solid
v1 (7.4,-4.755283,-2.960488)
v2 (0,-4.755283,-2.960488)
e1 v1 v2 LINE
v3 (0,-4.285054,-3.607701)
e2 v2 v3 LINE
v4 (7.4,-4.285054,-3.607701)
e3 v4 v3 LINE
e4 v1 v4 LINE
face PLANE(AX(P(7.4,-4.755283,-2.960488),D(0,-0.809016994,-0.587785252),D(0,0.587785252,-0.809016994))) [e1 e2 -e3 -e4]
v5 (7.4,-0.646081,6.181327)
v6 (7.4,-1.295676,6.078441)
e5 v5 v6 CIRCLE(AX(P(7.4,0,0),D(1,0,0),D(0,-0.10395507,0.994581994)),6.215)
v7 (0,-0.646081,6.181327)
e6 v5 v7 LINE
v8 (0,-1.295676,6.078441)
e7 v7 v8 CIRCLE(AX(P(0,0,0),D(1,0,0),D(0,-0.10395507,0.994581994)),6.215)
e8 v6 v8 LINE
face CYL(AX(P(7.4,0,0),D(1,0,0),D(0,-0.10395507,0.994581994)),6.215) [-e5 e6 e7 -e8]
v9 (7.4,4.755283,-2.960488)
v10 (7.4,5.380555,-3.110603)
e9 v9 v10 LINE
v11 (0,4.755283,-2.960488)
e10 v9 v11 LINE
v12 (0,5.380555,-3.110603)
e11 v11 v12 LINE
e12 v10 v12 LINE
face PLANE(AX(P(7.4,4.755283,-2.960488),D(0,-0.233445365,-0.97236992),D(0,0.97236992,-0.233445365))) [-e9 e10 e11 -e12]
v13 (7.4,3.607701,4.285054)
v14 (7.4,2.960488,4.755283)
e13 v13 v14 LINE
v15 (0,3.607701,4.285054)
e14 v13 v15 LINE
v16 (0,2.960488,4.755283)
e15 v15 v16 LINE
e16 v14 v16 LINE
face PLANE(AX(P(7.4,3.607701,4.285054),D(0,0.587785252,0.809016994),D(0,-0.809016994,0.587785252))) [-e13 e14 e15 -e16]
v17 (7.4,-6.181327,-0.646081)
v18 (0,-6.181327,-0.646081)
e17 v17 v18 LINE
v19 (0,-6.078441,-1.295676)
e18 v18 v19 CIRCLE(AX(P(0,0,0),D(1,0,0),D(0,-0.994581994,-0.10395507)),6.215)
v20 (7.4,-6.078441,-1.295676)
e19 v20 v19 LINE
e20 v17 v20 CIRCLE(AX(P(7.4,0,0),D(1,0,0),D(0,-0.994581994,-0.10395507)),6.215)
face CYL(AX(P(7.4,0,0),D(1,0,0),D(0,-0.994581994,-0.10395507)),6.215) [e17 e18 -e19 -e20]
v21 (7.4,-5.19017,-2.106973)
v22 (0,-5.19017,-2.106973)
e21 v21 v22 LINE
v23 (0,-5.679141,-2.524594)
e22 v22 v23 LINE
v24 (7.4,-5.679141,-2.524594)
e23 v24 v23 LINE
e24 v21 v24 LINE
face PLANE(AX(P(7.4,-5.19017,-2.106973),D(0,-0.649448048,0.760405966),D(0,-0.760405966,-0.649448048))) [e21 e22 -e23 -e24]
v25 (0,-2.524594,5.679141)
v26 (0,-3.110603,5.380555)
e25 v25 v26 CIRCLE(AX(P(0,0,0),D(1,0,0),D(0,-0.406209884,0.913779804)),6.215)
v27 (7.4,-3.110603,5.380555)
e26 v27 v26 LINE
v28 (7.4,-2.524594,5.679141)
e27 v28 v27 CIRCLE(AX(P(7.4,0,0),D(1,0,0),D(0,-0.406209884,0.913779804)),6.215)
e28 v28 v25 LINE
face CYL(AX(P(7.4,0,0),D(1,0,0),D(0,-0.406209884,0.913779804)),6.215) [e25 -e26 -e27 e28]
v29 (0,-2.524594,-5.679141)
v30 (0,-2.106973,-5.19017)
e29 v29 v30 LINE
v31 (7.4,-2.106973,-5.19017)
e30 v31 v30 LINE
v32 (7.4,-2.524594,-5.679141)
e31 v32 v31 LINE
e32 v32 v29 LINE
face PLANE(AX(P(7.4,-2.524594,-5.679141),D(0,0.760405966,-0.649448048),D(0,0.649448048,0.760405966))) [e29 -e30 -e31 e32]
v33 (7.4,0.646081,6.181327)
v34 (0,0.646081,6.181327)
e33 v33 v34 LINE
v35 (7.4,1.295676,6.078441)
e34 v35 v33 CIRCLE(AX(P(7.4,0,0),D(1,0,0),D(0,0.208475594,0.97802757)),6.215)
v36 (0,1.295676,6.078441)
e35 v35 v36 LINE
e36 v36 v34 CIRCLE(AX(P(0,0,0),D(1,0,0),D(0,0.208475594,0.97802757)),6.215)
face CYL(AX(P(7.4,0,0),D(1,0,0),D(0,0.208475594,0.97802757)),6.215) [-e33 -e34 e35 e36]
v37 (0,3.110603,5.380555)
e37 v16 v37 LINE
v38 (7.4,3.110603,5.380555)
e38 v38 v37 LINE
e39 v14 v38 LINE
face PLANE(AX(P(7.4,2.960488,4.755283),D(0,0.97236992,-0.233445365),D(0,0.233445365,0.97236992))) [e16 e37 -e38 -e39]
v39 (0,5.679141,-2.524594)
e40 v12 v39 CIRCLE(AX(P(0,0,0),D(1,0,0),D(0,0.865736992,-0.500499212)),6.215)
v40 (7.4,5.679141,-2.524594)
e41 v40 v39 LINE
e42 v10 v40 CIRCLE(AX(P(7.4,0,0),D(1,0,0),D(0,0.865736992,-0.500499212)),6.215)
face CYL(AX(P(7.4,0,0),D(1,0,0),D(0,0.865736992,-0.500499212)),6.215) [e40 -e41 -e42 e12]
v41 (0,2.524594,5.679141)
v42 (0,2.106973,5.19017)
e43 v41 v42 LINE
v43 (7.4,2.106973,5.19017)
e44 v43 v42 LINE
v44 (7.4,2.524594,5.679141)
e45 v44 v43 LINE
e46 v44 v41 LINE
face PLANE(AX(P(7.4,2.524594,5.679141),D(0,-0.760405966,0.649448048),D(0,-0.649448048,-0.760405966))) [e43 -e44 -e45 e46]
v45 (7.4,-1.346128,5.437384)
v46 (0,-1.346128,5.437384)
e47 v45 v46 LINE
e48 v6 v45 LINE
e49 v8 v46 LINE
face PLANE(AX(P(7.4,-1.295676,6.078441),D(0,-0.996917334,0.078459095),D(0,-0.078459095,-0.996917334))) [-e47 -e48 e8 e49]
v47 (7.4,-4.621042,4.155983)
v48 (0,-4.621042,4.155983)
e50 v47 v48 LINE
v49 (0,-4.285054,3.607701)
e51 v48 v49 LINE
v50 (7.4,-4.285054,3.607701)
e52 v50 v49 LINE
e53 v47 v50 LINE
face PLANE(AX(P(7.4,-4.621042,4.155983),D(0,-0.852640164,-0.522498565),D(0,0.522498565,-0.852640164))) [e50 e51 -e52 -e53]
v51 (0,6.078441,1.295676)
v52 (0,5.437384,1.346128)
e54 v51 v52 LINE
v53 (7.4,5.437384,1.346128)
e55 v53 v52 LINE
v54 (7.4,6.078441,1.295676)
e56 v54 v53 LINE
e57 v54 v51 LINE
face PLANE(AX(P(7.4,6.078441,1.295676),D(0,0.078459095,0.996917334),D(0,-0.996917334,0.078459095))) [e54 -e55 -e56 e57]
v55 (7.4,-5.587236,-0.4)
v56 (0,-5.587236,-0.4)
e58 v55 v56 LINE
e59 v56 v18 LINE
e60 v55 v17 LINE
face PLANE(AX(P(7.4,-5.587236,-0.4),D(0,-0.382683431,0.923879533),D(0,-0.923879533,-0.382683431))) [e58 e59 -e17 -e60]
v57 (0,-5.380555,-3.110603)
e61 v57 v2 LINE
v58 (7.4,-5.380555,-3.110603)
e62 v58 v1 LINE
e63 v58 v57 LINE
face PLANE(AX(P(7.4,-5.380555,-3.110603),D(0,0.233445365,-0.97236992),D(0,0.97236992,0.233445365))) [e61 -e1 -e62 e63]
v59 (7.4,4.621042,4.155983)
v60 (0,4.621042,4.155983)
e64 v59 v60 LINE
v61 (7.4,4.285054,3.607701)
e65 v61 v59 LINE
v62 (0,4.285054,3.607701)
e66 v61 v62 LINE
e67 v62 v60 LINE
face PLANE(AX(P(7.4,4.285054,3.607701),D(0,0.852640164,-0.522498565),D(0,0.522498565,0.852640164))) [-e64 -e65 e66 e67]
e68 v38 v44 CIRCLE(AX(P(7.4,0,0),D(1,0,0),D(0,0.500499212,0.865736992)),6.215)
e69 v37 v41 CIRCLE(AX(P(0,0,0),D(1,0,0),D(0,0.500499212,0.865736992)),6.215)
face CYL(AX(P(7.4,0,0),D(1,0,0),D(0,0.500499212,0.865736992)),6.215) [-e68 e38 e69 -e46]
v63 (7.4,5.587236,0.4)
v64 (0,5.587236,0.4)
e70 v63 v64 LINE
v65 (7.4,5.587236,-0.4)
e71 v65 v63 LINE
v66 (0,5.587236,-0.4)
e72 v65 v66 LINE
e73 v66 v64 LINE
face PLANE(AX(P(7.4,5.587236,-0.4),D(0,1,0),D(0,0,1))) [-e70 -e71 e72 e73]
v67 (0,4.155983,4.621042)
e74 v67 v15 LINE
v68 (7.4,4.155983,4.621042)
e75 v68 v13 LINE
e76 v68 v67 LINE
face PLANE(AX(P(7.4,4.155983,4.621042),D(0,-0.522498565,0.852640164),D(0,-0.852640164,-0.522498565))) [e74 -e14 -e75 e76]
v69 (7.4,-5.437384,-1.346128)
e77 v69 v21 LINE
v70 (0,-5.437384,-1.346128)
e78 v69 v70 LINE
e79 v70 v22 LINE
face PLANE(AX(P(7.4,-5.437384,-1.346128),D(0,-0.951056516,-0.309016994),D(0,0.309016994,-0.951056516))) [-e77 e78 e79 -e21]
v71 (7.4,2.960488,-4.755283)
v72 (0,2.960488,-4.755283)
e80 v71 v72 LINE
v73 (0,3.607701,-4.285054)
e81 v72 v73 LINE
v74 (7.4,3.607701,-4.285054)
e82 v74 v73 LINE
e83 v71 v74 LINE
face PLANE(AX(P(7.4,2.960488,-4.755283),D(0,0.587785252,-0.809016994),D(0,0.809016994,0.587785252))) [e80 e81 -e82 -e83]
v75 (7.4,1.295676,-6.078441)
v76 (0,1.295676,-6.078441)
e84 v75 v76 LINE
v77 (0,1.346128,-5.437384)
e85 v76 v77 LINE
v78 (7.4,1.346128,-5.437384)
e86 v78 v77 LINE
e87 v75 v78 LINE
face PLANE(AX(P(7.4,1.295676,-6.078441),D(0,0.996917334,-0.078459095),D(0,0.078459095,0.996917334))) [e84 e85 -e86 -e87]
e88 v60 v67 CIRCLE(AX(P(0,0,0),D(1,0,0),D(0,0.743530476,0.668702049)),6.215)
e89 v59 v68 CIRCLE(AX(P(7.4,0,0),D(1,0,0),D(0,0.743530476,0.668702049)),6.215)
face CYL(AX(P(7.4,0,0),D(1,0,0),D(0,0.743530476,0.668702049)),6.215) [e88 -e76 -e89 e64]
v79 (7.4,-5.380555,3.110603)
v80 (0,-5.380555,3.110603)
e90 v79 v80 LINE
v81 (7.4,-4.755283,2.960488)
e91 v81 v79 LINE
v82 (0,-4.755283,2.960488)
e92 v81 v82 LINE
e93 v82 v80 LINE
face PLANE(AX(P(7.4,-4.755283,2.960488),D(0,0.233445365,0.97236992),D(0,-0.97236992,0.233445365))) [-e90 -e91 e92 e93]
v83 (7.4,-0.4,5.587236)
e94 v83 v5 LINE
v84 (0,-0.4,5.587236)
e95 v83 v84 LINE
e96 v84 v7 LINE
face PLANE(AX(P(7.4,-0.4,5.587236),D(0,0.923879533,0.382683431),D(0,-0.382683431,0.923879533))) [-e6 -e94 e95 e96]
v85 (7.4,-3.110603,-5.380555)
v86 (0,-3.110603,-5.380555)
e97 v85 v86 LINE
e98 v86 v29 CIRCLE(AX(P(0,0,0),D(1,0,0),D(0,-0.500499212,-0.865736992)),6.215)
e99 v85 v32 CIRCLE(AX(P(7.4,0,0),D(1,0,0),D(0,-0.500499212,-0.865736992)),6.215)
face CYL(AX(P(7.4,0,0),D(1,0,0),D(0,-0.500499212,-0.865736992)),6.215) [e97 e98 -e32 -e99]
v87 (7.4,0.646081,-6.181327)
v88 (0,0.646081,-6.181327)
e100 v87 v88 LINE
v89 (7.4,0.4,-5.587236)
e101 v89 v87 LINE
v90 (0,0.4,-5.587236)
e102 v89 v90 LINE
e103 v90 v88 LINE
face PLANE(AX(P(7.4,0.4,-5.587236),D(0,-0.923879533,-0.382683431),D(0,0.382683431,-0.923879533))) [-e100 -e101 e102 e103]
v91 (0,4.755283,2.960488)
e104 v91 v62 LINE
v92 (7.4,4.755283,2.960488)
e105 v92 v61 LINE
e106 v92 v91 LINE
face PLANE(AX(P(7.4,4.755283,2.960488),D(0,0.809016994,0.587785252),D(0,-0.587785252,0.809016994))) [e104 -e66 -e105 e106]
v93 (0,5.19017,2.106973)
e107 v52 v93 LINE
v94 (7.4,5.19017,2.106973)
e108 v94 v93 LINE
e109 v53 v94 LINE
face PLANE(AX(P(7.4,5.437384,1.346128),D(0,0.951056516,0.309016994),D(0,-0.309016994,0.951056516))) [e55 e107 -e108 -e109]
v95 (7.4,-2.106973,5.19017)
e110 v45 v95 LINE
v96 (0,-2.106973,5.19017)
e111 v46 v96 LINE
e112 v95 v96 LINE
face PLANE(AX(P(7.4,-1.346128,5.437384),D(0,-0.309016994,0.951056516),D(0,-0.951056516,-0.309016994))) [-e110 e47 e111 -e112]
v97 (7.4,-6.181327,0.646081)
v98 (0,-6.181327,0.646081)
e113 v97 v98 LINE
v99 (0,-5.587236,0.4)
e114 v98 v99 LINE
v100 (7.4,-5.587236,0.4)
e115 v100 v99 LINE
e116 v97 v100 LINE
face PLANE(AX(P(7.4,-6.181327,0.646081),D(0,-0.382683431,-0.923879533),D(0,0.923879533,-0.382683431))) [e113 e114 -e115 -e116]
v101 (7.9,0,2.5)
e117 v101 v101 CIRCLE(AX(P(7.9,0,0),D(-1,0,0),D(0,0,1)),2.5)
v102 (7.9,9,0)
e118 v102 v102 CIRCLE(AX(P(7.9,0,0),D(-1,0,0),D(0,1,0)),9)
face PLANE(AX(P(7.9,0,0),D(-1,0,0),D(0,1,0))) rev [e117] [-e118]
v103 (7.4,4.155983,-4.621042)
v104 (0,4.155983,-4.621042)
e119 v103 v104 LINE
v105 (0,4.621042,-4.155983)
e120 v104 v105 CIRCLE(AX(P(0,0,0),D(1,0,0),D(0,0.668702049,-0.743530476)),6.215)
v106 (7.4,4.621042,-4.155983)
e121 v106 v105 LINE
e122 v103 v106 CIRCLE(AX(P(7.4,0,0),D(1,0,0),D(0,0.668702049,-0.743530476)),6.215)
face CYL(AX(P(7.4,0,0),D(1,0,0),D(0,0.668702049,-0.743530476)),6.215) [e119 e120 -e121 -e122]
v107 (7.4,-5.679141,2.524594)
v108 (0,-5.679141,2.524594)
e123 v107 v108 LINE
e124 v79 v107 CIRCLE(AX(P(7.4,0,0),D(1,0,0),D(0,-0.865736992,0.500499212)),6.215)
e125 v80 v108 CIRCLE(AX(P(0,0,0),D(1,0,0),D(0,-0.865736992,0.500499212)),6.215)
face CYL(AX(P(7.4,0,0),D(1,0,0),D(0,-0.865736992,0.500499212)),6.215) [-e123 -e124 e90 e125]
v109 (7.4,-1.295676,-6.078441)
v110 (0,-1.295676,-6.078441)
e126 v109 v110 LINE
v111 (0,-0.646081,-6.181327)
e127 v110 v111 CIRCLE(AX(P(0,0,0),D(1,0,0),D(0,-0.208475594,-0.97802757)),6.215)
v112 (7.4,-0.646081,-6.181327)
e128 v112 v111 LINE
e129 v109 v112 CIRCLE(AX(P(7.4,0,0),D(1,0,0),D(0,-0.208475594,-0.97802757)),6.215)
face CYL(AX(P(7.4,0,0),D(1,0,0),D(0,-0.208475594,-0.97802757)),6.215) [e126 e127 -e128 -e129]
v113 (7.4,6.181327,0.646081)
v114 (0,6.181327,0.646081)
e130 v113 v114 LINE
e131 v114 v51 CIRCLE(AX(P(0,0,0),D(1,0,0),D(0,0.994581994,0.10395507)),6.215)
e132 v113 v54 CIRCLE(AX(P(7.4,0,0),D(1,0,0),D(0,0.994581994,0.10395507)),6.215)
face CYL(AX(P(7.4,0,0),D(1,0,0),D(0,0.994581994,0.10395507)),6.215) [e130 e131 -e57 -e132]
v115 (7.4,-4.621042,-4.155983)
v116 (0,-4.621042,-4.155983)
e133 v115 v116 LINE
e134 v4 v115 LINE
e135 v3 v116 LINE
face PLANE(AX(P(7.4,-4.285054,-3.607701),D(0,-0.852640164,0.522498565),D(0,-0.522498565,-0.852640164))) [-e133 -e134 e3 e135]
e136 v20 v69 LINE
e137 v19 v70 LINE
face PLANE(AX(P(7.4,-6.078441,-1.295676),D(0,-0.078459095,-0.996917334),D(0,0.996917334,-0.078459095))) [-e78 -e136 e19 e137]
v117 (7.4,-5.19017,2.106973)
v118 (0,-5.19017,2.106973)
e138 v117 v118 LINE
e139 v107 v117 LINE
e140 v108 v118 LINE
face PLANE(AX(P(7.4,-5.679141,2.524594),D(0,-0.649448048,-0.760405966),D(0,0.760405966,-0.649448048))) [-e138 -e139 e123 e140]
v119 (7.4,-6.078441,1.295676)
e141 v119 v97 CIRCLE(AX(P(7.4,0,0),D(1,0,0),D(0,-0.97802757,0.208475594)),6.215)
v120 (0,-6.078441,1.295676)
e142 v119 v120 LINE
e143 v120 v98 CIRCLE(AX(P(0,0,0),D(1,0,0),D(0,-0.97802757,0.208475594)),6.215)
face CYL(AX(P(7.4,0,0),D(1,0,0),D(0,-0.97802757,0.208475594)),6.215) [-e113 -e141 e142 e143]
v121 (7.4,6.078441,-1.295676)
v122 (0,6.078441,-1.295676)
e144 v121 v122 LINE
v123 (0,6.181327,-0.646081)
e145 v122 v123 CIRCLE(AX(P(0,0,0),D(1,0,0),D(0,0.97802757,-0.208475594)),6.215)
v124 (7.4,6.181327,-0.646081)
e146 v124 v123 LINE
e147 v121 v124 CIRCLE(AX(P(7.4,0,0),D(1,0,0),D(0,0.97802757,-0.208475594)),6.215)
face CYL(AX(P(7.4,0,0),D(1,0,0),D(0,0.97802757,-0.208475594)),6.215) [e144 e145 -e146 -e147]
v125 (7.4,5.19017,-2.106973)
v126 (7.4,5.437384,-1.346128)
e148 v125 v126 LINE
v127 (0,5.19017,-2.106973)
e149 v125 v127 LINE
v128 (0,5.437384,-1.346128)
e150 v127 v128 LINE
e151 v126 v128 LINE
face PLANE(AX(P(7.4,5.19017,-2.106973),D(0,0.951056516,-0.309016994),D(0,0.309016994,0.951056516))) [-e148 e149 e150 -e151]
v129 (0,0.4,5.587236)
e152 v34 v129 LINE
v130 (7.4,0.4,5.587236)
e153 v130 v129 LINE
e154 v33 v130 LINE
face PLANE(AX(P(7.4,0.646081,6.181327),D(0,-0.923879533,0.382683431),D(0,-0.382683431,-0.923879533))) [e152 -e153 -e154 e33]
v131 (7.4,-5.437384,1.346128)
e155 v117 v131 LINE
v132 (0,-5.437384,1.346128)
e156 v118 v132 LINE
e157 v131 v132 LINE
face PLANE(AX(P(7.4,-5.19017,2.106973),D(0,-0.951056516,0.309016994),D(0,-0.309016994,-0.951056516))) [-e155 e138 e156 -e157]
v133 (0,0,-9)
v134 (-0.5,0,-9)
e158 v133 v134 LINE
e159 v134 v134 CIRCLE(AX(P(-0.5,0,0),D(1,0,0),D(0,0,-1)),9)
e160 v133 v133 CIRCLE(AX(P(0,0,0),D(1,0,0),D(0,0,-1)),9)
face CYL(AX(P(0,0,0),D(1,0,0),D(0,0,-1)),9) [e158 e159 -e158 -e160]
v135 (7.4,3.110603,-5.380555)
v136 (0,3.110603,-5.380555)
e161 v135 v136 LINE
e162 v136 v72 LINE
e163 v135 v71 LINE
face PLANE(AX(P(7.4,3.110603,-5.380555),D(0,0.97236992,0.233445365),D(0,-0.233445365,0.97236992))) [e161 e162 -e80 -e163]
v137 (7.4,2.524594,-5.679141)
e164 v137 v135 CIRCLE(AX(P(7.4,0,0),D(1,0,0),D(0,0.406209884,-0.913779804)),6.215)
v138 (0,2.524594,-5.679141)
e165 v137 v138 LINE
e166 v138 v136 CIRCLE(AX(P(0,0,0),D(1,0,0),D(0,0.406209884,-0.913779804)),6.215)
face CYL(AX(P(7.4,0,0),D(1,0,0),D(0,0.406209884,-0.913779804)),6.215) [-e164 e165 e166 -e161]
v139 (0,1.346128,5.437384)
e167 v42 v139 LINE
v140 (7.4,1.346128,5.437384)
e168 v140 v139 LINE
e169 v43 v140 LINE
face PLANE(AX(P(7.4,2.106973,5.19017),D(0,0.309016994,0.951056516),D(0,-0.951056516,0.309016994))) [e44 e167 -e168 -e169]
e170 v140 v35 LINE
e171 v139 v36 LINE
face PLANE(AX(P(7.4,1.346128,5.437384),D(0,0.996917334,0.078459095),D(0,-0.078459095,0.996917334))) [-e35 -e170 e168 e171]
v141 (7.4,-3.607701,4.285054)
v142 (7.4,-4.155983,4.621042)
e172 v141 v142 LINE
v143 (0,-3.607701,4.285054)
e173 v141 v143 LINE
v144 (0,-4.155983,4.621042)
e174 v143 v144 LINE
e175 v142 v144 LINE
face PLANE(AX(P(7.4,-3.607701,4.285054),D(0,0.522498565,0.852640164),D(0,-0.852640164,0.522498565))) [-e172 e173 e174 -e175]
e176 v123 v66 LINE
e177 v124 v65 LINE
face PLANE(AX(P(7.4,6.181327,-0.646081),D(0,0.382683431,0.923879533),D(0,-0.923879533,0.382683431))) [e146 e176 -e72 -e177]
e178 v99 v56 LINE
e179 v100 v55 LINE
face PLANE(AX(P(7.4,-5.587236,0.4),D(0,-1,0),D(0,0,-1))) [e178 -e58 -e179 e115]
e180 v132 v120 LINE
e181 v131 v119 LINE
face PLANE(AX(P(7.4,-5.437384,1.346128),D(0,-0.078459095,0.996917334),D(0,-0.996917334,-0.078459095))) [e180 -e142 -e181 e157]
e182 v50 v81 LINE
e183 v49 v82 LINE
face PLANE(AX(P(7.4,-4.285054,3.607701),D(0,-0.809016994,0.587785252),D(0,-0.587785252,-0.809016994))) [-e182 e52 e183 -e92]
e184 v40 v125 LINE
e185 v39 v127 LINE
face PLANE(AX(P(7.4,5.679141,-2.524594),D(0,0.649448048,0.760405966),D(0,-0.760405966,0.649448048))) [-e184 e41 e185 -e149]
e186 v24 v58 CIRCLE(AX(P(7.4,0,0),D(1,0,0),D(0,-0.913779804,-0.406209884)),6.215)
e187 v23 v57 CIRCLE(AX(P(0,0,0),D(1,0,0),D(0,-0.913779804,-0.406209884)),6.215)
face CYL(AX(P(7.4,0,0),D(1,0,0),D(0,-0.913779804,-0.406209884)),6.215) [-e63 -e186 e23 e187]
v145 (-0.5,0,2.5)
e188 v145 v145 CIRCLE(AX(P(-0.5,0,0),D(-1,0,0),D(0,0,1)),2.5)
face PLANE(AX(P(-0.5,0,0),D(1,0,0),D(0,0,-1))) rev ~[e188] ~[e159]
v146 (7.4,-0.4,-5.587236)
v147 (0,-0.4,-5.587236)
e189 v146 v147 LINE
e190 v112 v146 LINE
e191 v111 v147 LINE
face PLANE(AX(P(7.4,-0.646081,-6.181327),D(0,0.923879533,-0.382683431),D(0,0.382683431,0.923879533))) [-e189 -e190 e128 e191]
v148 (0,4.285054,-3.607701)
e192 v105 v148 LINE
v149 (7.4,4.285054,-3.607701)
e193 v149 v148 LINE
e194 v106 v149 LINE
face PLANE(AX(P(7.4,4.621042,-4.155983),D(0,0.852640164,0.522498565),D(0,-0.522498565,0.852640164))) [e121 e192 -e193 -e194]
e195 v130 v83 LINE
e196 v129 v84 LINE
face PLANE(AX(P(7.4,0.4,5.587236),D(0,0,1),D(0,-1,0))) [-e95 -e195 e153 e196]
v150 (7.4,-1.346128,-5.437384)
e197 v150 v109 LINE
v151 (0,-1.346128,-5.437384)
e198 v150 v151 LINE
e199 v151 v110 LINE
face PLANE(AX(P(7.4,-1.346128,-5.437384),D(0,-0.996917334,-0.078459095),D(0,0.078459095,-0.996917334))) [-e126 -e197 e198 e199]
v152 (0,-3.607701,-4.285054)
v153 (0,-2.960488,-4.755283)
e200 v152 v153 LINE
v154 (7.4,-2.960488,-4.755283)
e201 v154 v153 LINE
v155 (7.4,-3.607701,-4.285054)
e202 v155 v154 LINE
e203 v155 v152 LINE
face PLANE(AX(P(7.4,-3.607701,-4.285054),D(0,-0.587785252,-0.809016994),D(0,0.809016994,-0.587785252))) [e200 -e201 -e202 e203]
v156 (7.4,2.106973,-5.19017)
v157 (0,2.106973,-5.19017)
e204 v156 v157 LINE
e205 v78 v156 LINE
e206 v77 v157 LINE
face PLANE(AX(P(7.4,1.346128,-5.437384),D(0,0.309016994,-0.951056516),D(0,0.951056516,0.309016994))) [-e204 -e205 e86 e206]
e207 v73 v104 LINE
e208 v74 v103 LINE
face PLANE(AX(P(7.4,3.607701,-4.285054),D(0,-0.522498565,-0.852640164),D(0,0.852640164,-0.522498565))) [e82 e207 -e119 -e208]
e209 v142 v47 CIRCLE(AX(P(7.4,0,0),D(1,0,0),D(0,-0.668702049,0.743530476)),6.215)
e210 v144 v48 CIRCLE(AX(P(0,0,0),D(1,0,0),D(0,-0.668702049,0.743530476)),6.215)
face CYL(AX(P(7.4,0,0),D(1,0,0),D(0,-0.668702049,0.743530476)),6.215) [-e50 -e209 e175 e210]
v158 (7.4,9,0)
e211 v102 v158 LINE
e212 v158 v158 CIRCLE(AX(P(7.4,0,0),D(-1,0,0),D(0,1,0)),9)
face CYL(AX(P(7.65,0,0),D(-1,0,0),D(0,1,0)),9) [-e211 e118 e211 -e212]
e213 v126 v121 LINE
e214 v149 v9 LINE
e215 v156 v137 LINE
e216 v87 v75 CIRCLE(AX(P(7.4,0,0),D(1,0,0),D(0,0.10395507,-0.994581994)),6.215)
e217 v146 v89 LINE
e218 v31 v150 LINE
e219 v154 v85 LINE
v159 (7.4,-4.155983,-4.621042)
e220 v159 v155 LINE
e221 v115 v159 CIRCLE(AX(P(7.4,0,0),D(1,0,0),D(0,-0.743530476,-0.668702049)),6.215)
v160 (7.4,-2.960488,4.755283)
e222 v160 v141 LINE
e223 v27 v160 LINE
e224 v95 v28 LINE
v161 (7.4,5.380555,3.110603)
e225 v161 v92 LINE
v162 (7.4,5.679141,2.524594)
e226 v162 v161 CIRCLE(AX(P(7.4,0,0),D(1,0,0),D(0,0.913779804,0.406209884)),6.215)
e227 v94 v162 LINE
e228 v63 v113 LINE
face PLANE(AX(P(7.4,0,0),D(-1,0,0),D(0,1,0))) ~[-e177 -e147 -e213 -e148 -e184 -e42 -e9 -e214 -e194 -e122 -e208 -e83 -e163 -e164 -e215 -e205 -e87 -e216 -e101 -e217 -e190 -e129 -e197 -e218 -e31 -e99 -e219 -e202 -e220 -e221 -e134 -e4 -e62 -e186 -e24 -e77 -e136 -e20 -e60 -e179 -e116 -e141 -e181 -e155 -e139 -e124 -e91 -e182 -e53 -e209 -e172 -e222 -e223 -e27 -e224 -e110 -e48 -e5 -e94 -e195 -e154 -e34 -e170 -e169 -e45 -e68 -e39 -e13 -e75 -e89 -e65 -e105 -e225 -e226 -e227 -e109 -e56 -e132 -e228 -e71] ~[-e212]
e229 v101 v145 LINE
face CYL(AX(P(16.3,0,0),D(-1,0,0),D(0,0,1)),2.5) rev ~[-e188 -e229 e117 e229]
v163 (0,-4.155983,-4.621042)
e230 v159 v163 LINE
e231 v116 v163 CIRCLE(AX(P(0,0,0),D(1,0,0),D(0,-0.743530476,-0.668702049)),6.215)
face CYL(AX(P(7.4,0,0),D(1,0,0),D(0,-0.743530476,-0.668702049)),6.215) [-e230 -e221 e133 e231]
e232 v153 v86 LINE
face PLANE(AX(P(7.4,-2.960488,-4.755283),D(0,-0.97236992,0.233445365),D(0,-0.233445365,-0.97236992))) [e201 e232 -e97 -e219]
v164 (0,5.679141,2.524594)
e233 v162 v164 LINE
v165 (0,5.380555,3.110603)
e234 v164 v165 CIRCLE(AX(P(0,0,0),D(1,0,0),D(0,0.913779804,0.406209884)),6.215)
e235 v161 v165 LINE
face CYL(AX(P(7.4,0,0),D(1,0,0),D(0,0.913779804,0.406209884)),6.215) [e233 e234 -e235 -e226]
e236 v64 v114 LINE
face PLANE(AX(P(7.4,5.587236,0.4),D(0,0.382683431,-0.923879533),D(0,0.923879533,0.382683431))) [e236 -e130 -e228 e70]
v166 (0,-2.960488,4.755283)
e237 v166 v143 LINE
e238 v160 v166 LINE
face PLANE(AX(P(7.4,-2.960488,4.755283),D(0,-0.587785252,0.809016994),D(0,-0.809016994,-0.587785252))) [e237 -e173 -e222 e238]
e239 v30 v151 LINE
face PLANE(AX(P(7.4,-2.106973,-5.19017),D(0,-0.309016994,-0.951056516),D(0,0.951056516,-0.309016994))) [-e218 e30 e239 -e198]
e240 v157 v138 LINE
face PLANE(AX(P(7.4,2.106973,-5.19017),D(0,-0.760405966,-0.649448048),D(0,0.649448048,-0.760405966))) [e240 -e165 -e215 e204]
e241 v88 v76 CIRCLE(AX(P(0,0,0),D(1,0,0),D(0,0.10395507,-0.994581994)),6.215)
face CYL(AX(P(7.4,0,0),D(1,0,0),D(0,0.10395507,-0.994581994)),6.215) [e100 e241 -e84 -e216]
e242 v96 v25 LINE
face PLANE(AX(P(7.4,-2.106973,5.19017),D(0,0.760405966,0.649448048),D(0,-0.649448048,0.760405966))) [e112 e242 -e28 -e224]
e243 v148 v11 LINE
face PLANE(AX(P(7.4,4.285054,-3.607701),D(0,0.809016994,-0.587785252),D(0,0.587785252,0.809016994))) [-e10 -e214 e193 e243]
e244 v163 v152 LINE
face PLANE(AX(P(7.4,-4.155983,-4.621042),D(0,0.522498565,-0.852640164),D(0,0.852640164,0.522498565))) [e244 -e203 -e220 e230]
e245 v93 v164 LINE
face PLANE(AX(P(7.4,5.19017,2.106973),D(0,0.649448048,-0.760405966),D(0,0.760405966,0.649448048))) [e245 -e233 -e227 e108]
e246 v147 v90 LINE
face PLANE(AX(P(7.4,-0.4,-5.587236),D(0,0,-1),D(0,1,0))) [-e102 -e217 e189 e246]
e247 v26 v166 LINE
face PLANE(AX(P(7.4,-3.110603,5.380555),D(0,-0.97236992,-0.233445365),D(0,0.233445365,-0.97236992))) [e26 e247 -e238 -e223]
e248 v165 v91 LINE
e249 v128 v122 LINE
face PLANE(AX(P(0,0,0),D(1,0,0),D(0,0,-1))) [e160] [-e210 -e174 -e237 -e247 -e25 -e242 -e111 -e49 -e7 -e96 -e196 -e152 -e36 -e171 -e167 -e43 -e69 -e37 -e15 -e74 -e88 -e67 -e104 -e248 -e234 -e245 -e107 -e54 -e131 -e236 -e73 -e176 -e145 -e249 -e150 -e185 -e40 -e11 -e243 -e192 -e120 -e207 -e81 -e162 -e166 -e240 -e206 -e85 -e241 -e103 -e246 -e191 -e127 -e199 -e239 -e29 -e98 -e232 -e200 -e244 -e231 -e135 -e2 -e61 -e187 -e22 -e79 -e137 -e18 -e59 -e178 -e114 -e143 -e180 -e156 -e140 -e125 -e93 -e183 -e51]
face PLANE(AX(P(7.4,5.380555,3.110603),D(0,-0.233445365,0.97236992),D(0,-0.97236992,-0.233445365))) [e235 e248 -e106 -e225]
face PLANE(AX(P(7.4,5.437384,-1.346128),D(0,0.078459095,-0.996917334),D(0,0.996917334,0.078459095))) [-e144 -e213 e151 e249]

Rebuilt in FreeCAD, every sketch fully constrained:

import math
import FreeCAD as App
import Part
import Sketcher

V = App.Vector
Q = App.Units.Quantity


def add_polygon(sketch, points):
    """Adds a closed chain of lines whose ends are joined by coincident constraints."""
    first, n = sketch.GeometryCount, len(points)
    for a, b in zip(points, points[1:] + points[:1]):
        sketch.addGeometry(Part.LineSegment(App.Vector(*a, 0), App.Vector(*b, 0)), False)
    for i in range(n):
        sketch.addConstraint(Sketcher.Constraint("Coincident", first + i, 2, first + (i + 1) % n, 1))

doc = App.newDocument("Part")
params = doc.addObject("Spreadsheet::Sheet", "Params")
for row, (alias, value) in enumerate([
    ("sketch1_height", "9 mm"),
    ("sketch1_width", "0.5 mm"),
    ("revolution_angle", "360 deg"),
    ("sketch2_width", "0.8 mm"),
    ("sketch2_length", "0.8 mm"),
    ("pad1_length", "7.4 mm"),
    ("sketch3_diameter", "18 mm"),
    ("pad2_length", "0.5 mm"),
    ("sketch4_diameter", "5 mm"),
    ("hole_diameter", "5 mm"),
    ("hole_depth", "8.4 mm"),
], start=1):
    params.set(f"A{row}", alias)
    params.set(f"B{row}", "=" + value)
    params.setAlias(f"B{row}", alias)

body = doc.addObject("PartDesign::Body", "Body")

sketch1 = body.newObject("Sketcher::SketchObject", "Sketch")
sketch1.AttachmentSupport = (doc.getObject("XY_Plane"), [""])
sketch1.MapMode = "FlatFace"
add_polygon(sketch1, [(7.9, 9), (7.9, 0), (7.4, 0), (7.4, 9)])
sketch1.addConstraint([
    Sketcher.Constraint("Vertical", 0),
    Sketcher.Constraint("Horizontal", 1),
    Sketcher.Constraint("Vertical", 2),
    Sketcher.Constraint("Horizontal", 3),
    Sketcher.Constraint("PointOnObject", 0, 2, -1),
    Sketcher.Constraint("DistanceY", 0, 2, 0, 1, Q("9 mm")),
    Sketcher.Constraint("DistanceX", 1, 2, 1, 1, Q("0.5 mm")),
    Sketcher.Constraint("DistanceX", -1, 1, 0, 2, Q("7.9 mm")),
])
sketch1.setExpression("Constraints[9]", "Params.sketch1_height")
sketch1.setExpression("Constraints[10]", "Params.sketch1_width")
revolution = body.newObject("PartDesign::Revolution", "Revolution")
revolution.Profile = sketch1
revolution.ReferenceAxis = (sketch1, ["H_Axis"])
revolution.setExpression("Angle", "Params.revolution_angle")

sketch2 = body.newObject("Sketcher::SketchObject", "Sketch001")
sketch2.AttachmentSupport = (doc.getObject("YZ_Plane"), [""])
sketch2.MapMode = "FlatFace"
sketch2.AttachmentOffset = App.Placement(V(0, 0, 7.4), App.Rotation())
sketch2.addGeometry([
    Part.LineSegment(V(-1.3, 5.4, 0), V(-1.3, 6.1, 0)),
    Part.ArcOfCircle(Part.Circle(V(0, 0, 0), V(0, 0, 1), 6.2), math.radians(95.97), math.radians(102.03)),
    Part.LineSegment(V(-0.6, 6.2, 0), V(-0.4, 5.6, 0)),
    Part.LineSegment(V(-0.4, 5.6, 0), V(0.4, 5.6, 0)),
    Part.LineSegment(V(0.4, 5.6, 0), V(0.6, 6.2, 0)),
    Part.ArcOfCircle(Part.Circle(V(0, 0, 0), V(0, 0, 1), 6.2), math.radians(77.97), math.radians(84.03)),
    Part.LineSegment(V(1.3, 6.1, 0), V(1.3, 5.4, 0)),
    Part.LineSegment(V(1.3, 5.4, 0), V(2.1, 5.2, 0)),
    Part.LineSegment(V(2.1, 5.2, 0), V(2.5, 5.7, 0)),
    Part.ArcOfCircle(Part.Circle(V(0, 0, 0), V(0, 0, 1), 6.2), math.radians(59.97), math.radians(66.03)),
    Part.LineSegment(V(3.1, 5.4, 0), V(3, 4.8, 0)),
    Part.LineSegment(V(3, 4.8, 0), V(3.6, 4.3, 0)),
    Part.LineSegment(V(3.6, 4.3, 0), V(4.2, 4.6, 0)),
    Part.ArcOfCircle(Part.Circle(V(0, 0, 0), V(0, 0, 1), 6.2), math.radians(41.97), math.radians(48.03)),
    Part.LineSegment(V(4.6, 4.2, 0), V(4.3, 3.6, 0)),
    Part.LineSegment(V(4.3, 3.6, 0), V(4.8, 3, 0)),
    Part.LineSegment(V(4.8, 3, 0), V(5.4, 3.1, 0)),
    Part.ArcOfCircle(Part.Circle(V(0, 0, 0), V(0, 0, 1), 6.2), math.radians(23.97), math.radians(30.03)),
    Part.LineSegment(V(5.7, 2.5, 0), V(5.2, 2.1, 0)),
    Part.LineSegment(V(5.2, 2.1, 0), V(5.4, 1.3, 0)),
    Part.LineSegment(V(5.4, 1.3, 0), V(6.1, 1.3, 0)),
    Part.ArcOfCircle(Part.Circle(V(0, 0, 0), V(0, 0, 1), 6.2), math.radians(5.97), math.radians(12.03)),
    Part.LineSegment(V(6.2, 0.6, 0), V(5.6, 0.4, 0)),
    Part.LineSegment(V(5.6, 0.4, 0), V(5.6, -0.4, 0)),
    Part.LineSegment(V(5.6, -0.4, 0), V(6.2, -0.6, 0)),
    Part.ArcOfCircle(Part.Circle(V(0, 0, 0), V(0, 0, 1), 6.2), math.radians(-12.03), math.radians(-5.97)),
    Part.LineSegment(V(6.1, -1.3, 0), V(5.4, -1.3, 0)),
    Part.LineSegment(V(5.4, -1.3, 0), V(5.2, -2.1, 0)),
    Part.LineSegment(V(5.2, -2.1, 0), V(5.7, -2.5, 0)),
    Part.ArcOfCircle(Part.Circle(V(0, 0, 0), V(0, 0, 1), 6.2), math.radians(-30.03), math.radians(-23.97)),
    Part.LineSegment(V(5.4, -3.1, 0), V(4.8, -3, 0)),
    Part.LineSegment(V(4.8, -3, 0), V(4.3, -3.6, 0)),
    Part.LineSegment(V(4.3, -3.6, 0), V(4.6, -4.2, 0)),
    Part.ArcOfCircle(Part.Circle(V(0, 0, 0), V(0, 0, 1), 6.2), math.radians(-48.03), math.radians(-41.97)),
    Part.LineSegment(V(4.2, -4.6, 0), V(3.6, -4.3, 0)),
    Part.LineSegment(V(3.6, -4.3, 0), V(3, -4.8, 0)),
    Part.LineSegment(V(3, -4.8, 0), V(3.1, -5.4, 0)),
    Part.ArcOfCircle(Part.Circle(V(0, 0, 0), V(0, 0, 1), 6.2), math.radians(-66.03), math.radians(-59.97)),
    Part.LineSegment(V(2.5, -5.7, 0), V(2.1, -5.2, 0)),
    Part.LineSegment(V(2.1, -5.2, 0), V(1.3, -5.4, 0)),
    Part.LineSegment(V(1.3, -5.4, 0), V(1.3, -6.1, 0)),
    Part.ArcOfCircle(Part.Circle(V(0, 0, 0), V(0, 0, 1), 6.2), math.radians(-84.03), math.radians(-77.97)),
    Part.LineSegment(V(0.6, -6.2, 0), V(0.4, -5.6, 0)),
    Part.LineSegment(V(0.4, -5.6, 0), V(-0.4, -5.6, 0)),
    Part.LineSegment(V(-0.4, -5.6, 0), V(-0.6, -6.2, 0)),
    Part.ArcOfCircle(Part.Circle(V(0, 0, 0), V(0, 0, 1), 6.2), math.radians(-102.03), math.radians(-95.97)),
    Part.LineSegment(V(-1.3, -6.1, 0), V(-1.3, -5.4, 0)),
    Part.LineSegment(V(-1.3, -5.4, 0), V(-2.1, -5.2, 0)),
    Part.LineSegment(V(-2.1, -5.2, 0), V(-2.5, -5.7, 0)),
    Part.ArcOfCircle(Part.Circle(V(0, 0, 0), V(0, 0, 1), 6.2), math.radians(-120.03), math.radians(-113.97)),
    Part.LineSegment(V(-3.1, -5.4, 0), V(-3, -4.8, 0)),
    Part.LineSegment(V(-3, -4.8, 0), V(-3.6, -4.3, 0)),
    Part.LineSegment(V(-3.6, -4.3, 0), V(-4.2, -4.6, 0)),
    Part.ArcOfCircle(Part.Circle(V(0, 0, 0), V(0, 0, 1), 6.2), math.radians(-138.03), math.radians(-131.97)),
    Part.LineSegment(V(-4.6, -4.2, 0), V(-4.3, -3.6, 0)),
    Part.LineSegment(V(-4.3, -3.6, 0), V(-4.8, -3, 0)),
    Part.LineSegment(V(-4.8, -3, 0), V(-5.4, -3.1, 0)),
    Part.ArcOfCircle(Part.Circle(V(0, 0, 0), V(0, 0, 1), 6.2), math.radians(-156.03), math.radians(-149.97)),
    Part.LineSegment(V(-5.7, -2.5, 0), V(-5.2, -2.1, 0)),
    Part.LineSegment(V(-5.2, -2.1, 0), V(-5.4, -1.3, 0)),
    Part.LineSegment(V(-5.4, -1.3, 0), V(-6.1, -1.3, 0)),
    Part.ArcOfCircle(Part.Circle(V(0, 0, 0), V(0, 0, 1), 6.2), math.radians(-174.03), math.radians(-167.97)),
    Part.LineSegment(V(-6.2, -0.6, 0), V(-5.6, -0.4, 0)),
    Part.LineSegment(V(-5.6, -0.4, 0), V(-5.6, 0.4, 0)),
    Part.LineSegment(V(-5.6, 0.4, 0), V(-6.2, 0.6, 0)),
    Part.ArcOfCircle(Part.Circle(V(0, 0, 0), V(0, 0, 1), 6.2), math.radians(167.97), math.radians(174.03)),
    Part.LineSegment(V(-6.1, 1.3, 0), V(-5.4, 1.3, 0)),
    Part.LineSegment(V(-5.4, 1.3, 0), V(-5.2, 2.1, 0)),
    Part.LineSegment(V(-5.2, 2.1, 0), V(-5.7, 2.5, 0)),
    Part.ArcOfCircle(Part.Circle(V(0, 0, 0), V(0, 0, 1), 6.2), math.radians(149.97), math.radians(156.03)),
    Part.LineSegment(V(-5.4, 3.1, 0), V(-4.8, 3, 0)),
    Part.LineSegment(V(-4.8, 3, 0), V(-4.3, 3.6, 0)),
    Part.LineSegment(V(-4.3, 3.6, 0), V(-4.6, 4.2, 0)),
    Part.ArcOfCircle(Part.Circle(V(0, 0, 0), V(0, 0, 1), 6.2), math.radians(131.97), math.radians(138.03)),
    Part.LineSegment(V(-4.2, 4.6, 0), V(-3.6, 4.3, 0)),
    Part.LineSegment(V(-3.6, 4.3, 0), V(-3, 4.8, 0)),
    Part.LineSegment(V(-3, 4.8, 0), V(-3.1, 5.4, 0)),
    Part.ArcOfCircle(Part.Circle(V(0, 0, 0), V(0, 0, 1), 6.2), math.radians(113.97), math.radians(120.03)),
    Part.LineSegment(V(-2.5, 5.7, 0), V(-2.1, 5.2, 0)),
    Part.LineSegment(V(-2.1, 5.2, 0), V(-1.3, 5.4, 0)),
], False)
sketch2.addConstraint([
    Sketcher.Constraint("Coincident", 0, 2, 1, 2),
    Sketcher.Constraint("Coincident", 1, 1, 2, 1),
    Sketcher.Constraint("Coincident", 2, 2, 3, 1),
    Sketcher.Constraint("Coincident", 3, 2, 4, 1),
    Sketcher.Constraint("Coincident", 4, 2, 5, 2),
    Sketcher.Constraint("Coincident", 5, 1, 6, 1),
    Sketcher.Constraint("Coincident", 6, 2, 7, 1),
    Sketcher.Constraint("Coincident", 7, 2, 8, 1),
    Sketcher.Constraint("Coincident", 8, 2, 9, 2),
    Sketcher.Constraint("Coincident", 9, 1, 10, 1),
    Sketcher.Constraint("Coincident", 10, 2, 11, 1),
    Sketcher.Constraint("Coincident", 11, 2, 12, 1),
    Sketcher.Constraint("Coincident", 12, 2, 13, 2),
    Sketcher.Constraint("Coincident", 13, 1, 14, 1),
    Sketcher.Constraint("Coincident", 14, 2, 15, 1),
    Sketcher.Constraint("Coincident", 15, 2, 16, 1),
    Sketcher.Constraint("Coincident", 16, 2, 17, 2),
    Sketcher.Constraint("Coincident", 17, 1, 18, 1),
    Sketcher.Constraint("Coincident", 18, 2, 19, 1),
    Sketcher.Constraint("Coincident", 19, 2, 20, 1),
    Sketcher.Constraint("Coincident", 20, 2, 21, 2),
    Sketcher.Constraint("Coincident", 21, 1, 22, 1),
    Sketcher.Constraint("Coincident", 22, 2, 23, 1),
    Sketcher.Constraint("Coincident", 23, 2, 24, 1),
    Sketcher.Constraint("Coincident", 24, 2, 25, 2),
    Sketcher.Constraint("Coincident", 25, 1, 26, 1),
    Sketcher.Constraint("Coincident", 26, 2, 27, 1),
    Sketcher.Constraint("Coincident", 27, 2, 28, 1),
    Sketcher.Constraint("Coincident", 28, 2, 29, 2),
    Sketcher.Constraint("Coincident", 29, 1, 30, 1),
    Sketcher.Constraint("Coincident", 30, 2, 31, 1),
    Sketcher.Constraint("Coincident", 31, 2, 32, 1),
    Sketcher.Constraint("Coincident", 32, 2, 33, 2),
    Sketcher.Constraint("Coincident", 33, 1, 34, 1),
    Sketcher.Constraint("Coincident", 34, 2, 35, 1),
    Sketcher.Constraint("Coincident", 35, 2, 36, 1),
    Sketcher.Constraint("Coincident", 36, 2, 37, 2),
    Sketcher.Constraint("Coincident", 37, 1, 38, 1),
    Sketcher.Constraint("Coincident", 38, 2, 39, 1),
    Sketcher.Constraint("Coincident", 39, 2, 40, 1),
    Sketcher.Constraint("Coincident", 40, 2, 41, 2),
    Sketcher.Constraint("Coincident", 41, 1, 42, 1),
    Sketcher.Constraint("Coincident", 42, 2, 43, 1),
    Sketcher.Constraint("Coincident", 43, 2, 44, 1),
    Sketcher.Constraint("Coincident", 44, 2, 45, 2),
    Sketcher.Constraint("Coincident", 45, 1, 46, 1),
    Sketcher.Constraint("Coincident", 46, 2, 47, 1),
    Sketcher.Constraint("Coincident", 47, 2, 48, 1),
    Sketcher.Constraint("Coincident", 48, 2, 49, 2),
    Sketcher.Constraint("Coincident", 49, 1, 50, 1),
    Sketcher.Constraint("Coincident", 50, 2, 51, 1),
    Sketcher.Constraint("Coincident", 51, 2, 52, 1),
    Sketcher.Constraint("Coincident", 52, 2, 53, 2),
    Sketcher.Constraint("Coincident", 53, 1, 54, 1),
    Sketcher.Constraint("Coincident", 54, 2, 55, 1),
    Sketcher.Constraint("Coincident", 55, 2, 56, 1),
    Sketcher.Constraint("Coincident", 56, 2, 57, 2),
    Sketcher.Constraint("Coincident", 57, 1, 58, 1),
    Sketcher.Constraint("Coincident", 58, 2, 59, 1),
    Sketcher.Constraint("Coincident", 59, 2, 60, 1),
    Sketcher.Constraint("Coincident", 60, 2, 61, 2),
    Sketcher.Constraint("Coincident", 61, 1, 62, 1),
    Sketcher.Constraint("Coincident", 62, 2, 63, 1),
    Sketcher.Constraint("Coincident", 63, 2, 64, 1),
    Sketcher.Constraint("Coincident", 64, 2, 65, 2),
    Sketcher.Constraint("Coincident", 65, 1, 66, 1),
    Sketcher.Constraint("Coincident", 66, 2, 67, 1),
    Sketcher.Constraint("Coincident", 67, 2, 68, 1),
    Sketcher.Constraint("Coincident", 68, 2, 69, 2),
    Sketcher.Constraint("Coincident", 69, 1, 70, 1),
    Sketcher.Constraint("Coincident", 70, 2, 71, 1),
    Sketcher.Constraint("Coincident", 71, 2, 72, 1),
    Sketcher.Constraint("Coincident", 72, 2, 73, 2),
    Sketcher.Constraint("Coincident", 73, 1, 74, 1),
    Sketcher.Constraint("Coincident", 74, 2, 75, 1),
    Sketcher.Constraint("Coincident", 75, 2, 76, 1),
    Sketcher.Constraint("Coincident", 76, 2, 77, 2),
    Sketcher.Constraint("Coincident", 77, 1, 78, 1),
    Sketcher.Constraint("Coincident", 78, 2, 79, 1),
    Sketcher.Constraint("Coincident", 79, 2, 0, 1),
    Sketcher.Constraint("Horizontal", 3),
    Sketcher.Constraint("Vertical", 23),
    Sketcher.Constraint("Horizontal", 43),
    Sketcher.Constraint("Vertical", 63),
    Sketcher.Constraint("Coincident", 1, 3, -1, 1),
    Sketcher.Constraint("Coincident", 5, 3, -1, 1),
    Sketcher.Constraint("Coincident", 9, 3, -1, 1),
    Sketcher.Constraint("Coincident", 13, 3, -1, 1),
    Sketcher.Constraint("Coincident", 17, 3, -1, 1),
    Sketcher.Constraint("Coincident", 21, 3, -1, 1),
    Sketcher.Constraint("Coincident", 25, 3, -1, 1),
    Sketcher.Constraint("Coincident", 29, 3, -1, 1),
    Sketcher.Constraint("Coincident", 33, 3, -1, 1),
    Sketcher.Constraint("Coincident", 37, 3, -1, 1),
    Sketcher.Constraint("Coincident", 41, 3, -1, 1),
    Sketcher.Constraint("Coincident", 45, 3, -1, 1),
    Sketcher.Constraint("Coincident", 49, 3, -1, 1),
    Sketcher.Constraint("Coincident", 53, 3, -1, 1),
    Sketcher.Constraint("Coincident", 57, 3, -1, 1),
    Sketcher.Constraint("Coincident", 61, 3, -1, 1),
    Sketcher.Constraint("Coincident", 65, 3, -1, 1),
    Sketcher.Constraint("Coincident", 69, 3, -1, 1),
    Sketcher.Constraint("Coincident", 73, 3, -1, 1),
    Sketcher.Constraint("Coincident", 77, 3, -1, 1),
    Sketcher.Constraint("Equal", 1, 5),
    Sketcher.Constraint("Equal", 5, 9),
    Sketcher.Constraint("Equal", 9, 13),
    Sketcher.Constraint("Equal", 13, 17),
    Sketcher.Constraint("Equal", 17, 21),
    Sketcher.Constraint("Equal", 21, 25),
    Sketcher.Constraint("Equal", 25, 29),
    Sketcher.Constraint("Equal", 29, 33),
    Sketcher.Constraint("Equal", 33, 37),
    Sketcher.Constraint("Equal", 37, 41),
    Sketcher.Constraint("Equal", 41, 45),
    Sketcher.Constraint("Equal", 45, 49),
    Sketcher.Constraint("Equal", 49, 53),
    Sketcher.Constraint("Equal", 53, 57),
    Sketcher.Constraint("Equal", 57, 61),
    Sketcher.Constraint("Equal", 61, 65),
    Sketcher.Constraint("Equal", 65, 69),
    Sketcher.Constraint("Equal", 69, 73),
    Sketcher.Constraint("Equal", 73, 77),
    Sketcher.Constraint("Symmetric", 2, 2, 42, 2, -1, 1),
    Sketcher.Constraint("Symmetric", 6, 2, 46, 2, -1, 1),
    Sketcher.Constraint("Symmetric", 7, 2, 47, 2, -1, 1),
    Sketcher.Constraint("Symmetric", 10, 2, 50, 2, -1, 1),
    Sketcher.Constraint("Symmetric", 11, 2, 51, 2, -1, 1),
    Sketcher.Constraint("Symmetric", 14, 2, 54, 2, -1, 1),
    Sketcher.Constraint("Symmetric", 15, 2, 55, 2, -1, 1),
    Sketcher.Constraint("Symmetric", 18, 2, 58, 2, -1, 1),
    Sketcher.Constraint("Symmetric", 19, 2, 59, 2, -1, 1),
    Sketcher.Constraint("Symmetric", 22, 2, 62, 2, -1, 1),
    Sketcher.Constraint("Symmetric", 26, 2, 66, 2, -1, 1),
    Sketcher.Constraint("Symmetric", 27, 2, 67, 2, -1, 1),
    Sketcher.Constraint("Symmetric", 30, 2, 70, 2, -1, 1),
    Sketcher.Constraint("Symmetric", 31, 2, 71, 2, -1, 1),
    Sketcher.Constraint("Symmetric", 34, 2, 74, 2, -1, 1),
    Sketcher.Constraint("Symmetric", 35, 2, 75, 2, -1, 1),
    Sketcher.Constraint("Symmetric", 38, 2, 78, 2, -1, 1),
    Sketcher.Constraint("Symmetric", 39, 2, 79, 2, -1, 1),
    Sketcher.Constraint("Symmetric", 39, 2, 46, 2, -2),
    Sketcher.Constraint("Symmetric", 38, 2, 47, 2, -2),
    Sketcher.Constraint("Symmetric", 35, 2, 50, 2, -2),
    Sketcher.Constraint("Symmetric", 34, 2, 51, 2, -2),
    Sketcher.Constraint("Symmetric", 31, 2, 54, 2, -2),
    Sketcher.Constraint("Symmetric", 30, 2, 55, 2, -2),
    Sketcher.Constraint("Symmetric", 27, 2, 58, 2, -2),
    Sketcher.Constraint("Symmetric", 26, 2, 59, 2, -2),
    Sketcher.Constraint("Perpendicular", 0, 20),
    Sketcher.Constraint("Perpendicular", 2, 22),
    Sketcher.Constraint("Perpendicular", 4, 24),
    Sketcher.Constraint("Perpendicular", 6, 26),
    Sketcher.Constraint("Perpendicular", 7, 27),
    Sketcher.Constraint("Perpendicular", 8, 28),
    Sketcher.Constraint("Perpendicular", 10, 30),
    Sketcher.Constraint("Perpendicular", 11, 31),
    Sketcher.Constraint("Perpendicular", 12, 32),
    Sketcher.Constraint("Perpendicular", 14, 34),
    Sketcher.Constraint("Perpendicular", 16, 36),
    Sketcher.Constraint("Perpendicular", 18, 38),
    Sketcher.Constraint("Perpendicular", 20, 40),
    Sketcher.Constraint("Perpendicular", 22, 42),
    Sketcher.Constraint("Perpendicular", 24, 44),
    Sketcher.Constraint("Perpendicular", 26, 46),
    Sketcher.Constraint("Perpendicular", 28, 48),
    Sketcher.Constraint("Perpendicular", 30, 50),
    Sketcher.Constraint("Perpendicular", 32, 52),
    Sketcher.Constraint("Perpendicular", 34, 54),
    Sketcher.Constraint("Perpendicular", 36, 56),
    Sketcher.Constraint("Perpendicular", 38, 58),
    Sketcher.Constraint("Perpendicular", 40, 60),
    Sketcher.Constraint("Perpendicular", 42, 62),
    Sketcher.Constraint("Perpendicular", 44, 64),
    Sketcher.Constraint("Perpendicular", 46, 66),
    Sketcher.Constraint("Perpendicular", 48, 68),
    Sketcher.Constraint("Perpendicular", 50, 70),
    Sketcher.Constraint("Perpendicular", 52, 72),
    Sketcher.Constraint("Perpendicular", 54, 74),
    Sketcher.Constraint("Perpendicular", 56, 76),
    Sketcher.Constraint("Perpendicular", 58, 78),
    Sketcher.Constraint("Horizontal", 1, 1, 4, 2),
    Sketcher.Constraint("Horizontal", 0, 2, 5, 1),
    Sketcher.Constraint("Horizontal", 41, 1, 44, 2),
    Sketcher.Constraint("Horizontal", 37, 1, 48, 2),
    Sketcher.Constraint("Horizontal", 36, 2, 49, 1),
    Sketcher.Constraint("Horizontal", 33, 1, 52, 2),
    Sketcher.Constraint("Horizontal", 24, 2, 61, 1),
    Sketcher.Constraint("Horizontal", 23, 2, 62, 2),
    Sketcher.Constraint("Horizontal", 22, 2, 63, 2),
    Sketcher.Constraint("Equal", 43, 23),
    Sketcher.Constraint("Equal", 0, 2),
    Sketcher.Constraint("Equal", 6, 8),
    Sketcher.Constraint("Equal", 8, 10),
    Sketcher.Constraint("Equal", 7, 11),
    Sketcher.Constraint("Equal", 10, 12),
    Sketcher.Constraint("Equal", 12, 14),
    Sketcher.Constraint("Equal", 11, 15),
    Sketcher.Constraint("Equal", 14, 16),
    Sketcher.Constraint("Equal", 16, 18),
    Sketcher.Constraint("Equal", 15, 19),
    Sketcher.Constraint("Equal", 18, 20),
    Sketcher.Constraint("Equal", 20, 22),
    Sketcher.Constraint("Angle", 7, Q("-18 deg")),
    Sketcher.Constraint("Angle", 11, Q("-36 deg")),
    Sketcher.Constraint("DistanceX", 3, 1, 3, 2, Q("0.8 mm")),
    Sketcher.Constraint("Angle", 0, Q("85.5 deg")),
    Sketcher.Constraint("Angle", 2, Q("-67.5 deg")),
    Sketcher.Constraint("Angle", 8, Q("49.5 deg")),
    Sketcher.Constraint("Angle", 10, Q("-103.5 deg")),
    Sketcher.Constraint("Angle", 12, Q("31.5 deg")),
    Sketcher.Constraint("Radius", 1, Q("6.215 mm")),
    Sketcher.Constraint("Distance", 7, Q("0.8 mm")),
    Sketcher.Constraint("DistanceX", -1, 1, 11, 2, Q("3.607701 mm")),
])
sketch2.setExpression("Constraints[205]", "Params.sketch2_width")
sketch2.setExpression("Constraints[212]", "Params.sketch2_length")
pad1 = body.newObject("PartDesign::Pad", "Pad")
pad1.Profile = sketch2
pad1.setExpression("Length", "Params.pad1_length")
pad1.Reversed = True

sketch3 = body.newObject("Sketcher::SketchObject", "Sketch002")
sketch3.AttachmentSupport = (doc.getObject("YZ_Plane"), [""])
sketch3.MapMode = "FlatFace"
sketch3.addGeometry(Part.Circle(V(0, 0, 0), V(0, 0, 1), 9), False)
sketch3.addConstraint([
    Sketcher.Constraint("Coincident", 0, 3, -1, 1),
    Sketcher.Constraint("Diameter", 0, Q("18 mm")),
])
sketch3.setExpression("Constraints[1]", "Params.sketch3_diameter")
pad2 = body.newObject("PartDesign::Pad", "Pad001")
pad2.Profile = sketch3
pad2.setExpression("Length", "Params.pad2_length")
pad2.Reversed = True

sketch4 = body.newObject("Sketcher::SketchObject", "Sketch003")
sketch4.AttachmentSupport = (doc.getObject("YZ_Plane"), [""])
sketch4.MapMode = "FlatFace"
sketch4.AttachmentOffset = App.Placement(V(0, 0, 7.9), App.Rotation())
sketch4.addGeometry(Part.Circle(V(0, 0, 0), V(0, 0, 1), 2.5), False)
sketch4.addConstraint([
    Sketcher.Constraint("Coincident", 0, 3, -1, 1),
    Sketcher.Constraint("Diameter", 0, Q("5 mm")),
])
sketch4.setExpression("Constraints[1]", "Params.sketch4_diameter")
doc.recompute()
hole = body.newObject("PartDesign::Hole", "Hole")
hole.Profile = sketch4
hole.ThreadType = "None"
hole.setExpression("Diameter", "Params.hole_diameter")
hole.DepthType = "Dimension"
hole.setExpression("Depth", "Params.hole_depth")
hole.DrillPoint = "Flat"

doc.recompute()
